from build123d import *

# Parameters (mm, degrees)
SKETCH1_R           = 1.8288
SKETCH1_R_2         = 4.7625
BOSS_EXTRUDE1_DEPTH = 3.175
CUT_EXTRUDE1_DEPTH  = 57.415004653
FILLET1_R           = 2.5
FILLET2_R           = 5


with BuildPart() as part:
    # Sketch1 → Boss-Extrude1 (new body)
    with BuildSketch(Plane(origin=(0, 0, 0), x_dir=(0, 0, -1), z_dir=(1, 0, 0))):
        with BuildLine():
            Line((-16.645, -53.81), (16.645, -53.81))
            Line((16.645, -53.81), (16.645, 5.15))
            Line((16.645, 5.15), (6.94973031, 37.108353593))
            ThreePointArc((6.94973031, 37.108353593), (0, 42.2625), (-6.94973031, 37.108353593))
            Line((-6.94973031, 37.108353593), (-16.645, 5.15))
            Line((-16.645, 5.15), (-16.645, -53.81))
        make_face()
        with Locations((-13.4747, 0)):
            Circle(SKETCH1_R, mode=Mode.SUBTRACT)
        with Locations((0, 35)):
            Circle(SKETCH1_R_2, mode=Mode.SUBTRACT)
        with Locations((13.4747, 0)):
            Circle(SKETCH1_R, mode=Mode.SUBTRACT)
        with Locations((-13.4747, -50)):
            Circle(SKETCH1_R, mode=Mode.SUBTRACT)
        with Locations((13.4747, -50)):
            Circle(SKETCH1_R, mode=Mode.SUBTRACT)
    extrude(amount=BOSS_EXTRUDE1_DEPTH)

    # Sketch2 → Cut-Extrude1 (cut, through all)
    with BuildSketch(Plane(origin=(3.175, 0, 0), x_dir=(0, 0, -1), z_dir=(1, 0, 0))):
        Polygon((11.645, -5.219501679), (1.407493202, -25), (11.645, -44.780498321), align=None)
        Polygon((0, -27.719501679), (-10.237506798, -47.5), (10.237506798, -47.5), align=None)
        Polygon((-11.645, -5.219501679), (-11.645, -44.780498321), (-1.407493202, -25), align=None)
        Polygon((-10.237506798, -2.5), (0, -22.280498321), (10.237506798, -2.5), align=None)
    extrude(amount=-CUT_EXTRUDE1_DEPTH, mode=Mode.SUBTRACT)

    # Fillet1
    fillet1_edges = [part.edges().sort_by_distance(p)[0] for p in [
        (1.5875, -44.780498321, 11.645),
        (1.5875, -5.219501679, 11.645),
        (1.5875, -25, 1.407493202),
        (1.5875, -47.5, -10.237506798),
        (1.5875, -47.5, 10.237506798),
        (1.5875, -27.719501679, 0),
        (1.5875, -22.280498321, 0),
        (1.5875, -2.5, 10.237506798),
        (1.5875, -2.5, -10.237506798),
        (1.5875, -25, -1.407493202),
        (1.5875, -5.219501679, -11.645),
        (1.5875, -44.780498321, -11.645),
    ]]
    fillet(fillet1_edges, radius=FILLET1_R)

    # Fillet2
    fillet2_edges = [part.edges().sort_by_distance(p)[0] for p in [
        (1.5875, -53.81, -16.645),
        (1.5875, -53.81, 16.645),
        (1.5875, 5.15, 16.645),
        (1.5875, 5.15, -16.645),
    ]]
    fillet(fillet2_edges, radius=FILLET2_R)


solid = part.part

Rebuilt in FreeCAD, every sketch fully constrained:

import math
import FreeCAD as App
import Part
import Sketcher

V = App.Vector
Q = App.Units.Quantity


def edges_at(feature, points):
    """Names of the edges that pass closest to the given points."""
    edges = feature.Shape.Edges
    near = lambda p: min(range(len(edges)), key=lambda i: edges[i].distToShape(Part.Vertex(*p))[0])
    return sorted({f"Edge{near(p) + 1}" for p in points})

doc = App.newDocument("Part")
params = doc.addObject("Spreadsheet::Sheet", "Params")
for row, (alias, value) in enumerate([
    ("sketch1_diameter", "0.144 in"),
    ("sketch1_diameter2", "0.375 in"),
    ("pad1_length", "0.125 in"),
    ("fillet_radius", "2.5 mm"),
    ("fillet2_radius", "5 mm"),
], start=1):
    params.set(f"A{row}", alias)
    params.set(f"B{row}", "=" + value)
    params.setAlias(f"B{row}", alias)

body = doc.addObject("PartDesign::Body", "Body")

# Sketch on YZ plane
sketch1 = body.newObject("Sketcher::SketchObject", "Sketch")
sketch1.AttachmentSupport = (doc.getObject("YZ_Plane"), [""])
sketch1.MapMode = "FlatFace"
sketch1.addGeometry([
    Part.LineSegment(V(-53.8, 16.6, 0), V(-53.8, -16.6, 0)),  # 0
    Part.LineSegment(V(-53.8, -16.6, 0), V(5.2, -16.6, 0)),  # 1
    Part.LineSegment(V(5.2, -16.6, 0), V(37.1, -6.9, 0)),  # 2
    Part.ArcOfCircle(Part.Circle(V(35, 0, 0), V(0, 0, 1), 7.3), math.radians(-73), math.radians(73)),  # 3
    Part.LineSegment(V(37.1, 6.9, 0), V(5.2, 16.6, 0)),  # 4
    Part.LineSegment(V(5.2, 16.6, 0), V(-53.8, 16.6, 0)),  # 5
    Part.Circle(V(-50, 13.5, 0), V(0, 0, 1), 1.8),  # 6
    Part.Circle(V(-50, -13.5, 0), V(0, 0, 1), 1.8),  # 7
    Part.Circle(V(0, 13.5, 0), V(0, 0, 1), 1.8),  # 8
    Part.Circle(V(0, -13.5, 0), V(0, 0, 1), 1.8),  # 9
    Part.Circle(V(35, 0, 0), V(0, 0, 1), 4.8),  # 10
], False)
sketch1.addConstraint([
    Sketcher.Constraint("Coincident", 0, 2, 1, 1),
    Sketcher.Constraint("Coincident", 1, 2, 2, 1),
    Sketcher.Constraint("Tangent", 2, 2, 3, 1),
    Sketcher.Constraint("Tangent", 3, 2, 4, 1),
    Sketcher.Constraint("Coincident", 4, 2, 5, 1),
    Sketcher.Constraint("Coincident", 5, 2, 0, 1),
    Sketcher.Constraint("Vertical", 0),
    Sketcher.Constraint("Horizontal", 1),
    Sketcher.Constraint("Horizontal", 5),
    Sketcher.Constraint("Coincident", 10, 3, 3, 3),
    Sketcher.Constraint("Equal", 6, 7),
    Sketcher.Constraint("Equal", 7, 8),
    Sketcher.Constraint("Equal", 8, 9),
    Sketcher.Constraint("Symmetric", 8, 3, 9, 3, -1, 1),
    Sketcher.Constraint("Symmetric", 6, 3, 7, 3, -1),
    Sketcher.Constraint("Symmetric", 2, 2, 3, 2, -1),
    Sketcher.Constraint("PointOnObject", 8, 3, -2),
    Sketcher.Constraint("Horizontal", 6, 3, 8, 3),
    Sketcher.Constraint("Vertical", 1, 2, 4, 2),
    Sketcher.Constraint("Diameter", 6, Q("0.144 in")),
    Sketcher.Constraint("Diameter", 10, Q("0.375 in")),
    Sketcher.Constraint("Radius", 3, Q("7.2625 mm")),
    Sketcher.Constraint("DistanceX", 0, 2, 7, 3, Q("0.15 in")),
    Sketcher.Constraint("DistanceY", 7, 3, 6, 3, Q("1.061 in")),
    Sketcher.Constraint("DistanceX", 1, 1, 1, 2, Q("58.96 mm")),
    Sketcher.Constraint("DistanceY", 0, 2, 0, 1, Q("33.29 mm")),
    Sketcher.Constraint("DistanceX", -1, 1, 3, 3, Q("35 mm")),
    Sketcher.Constraint("DistanceX", 6, 3, -1, 1, Q("50 mm")),
])
sketch1.setExpression("Constraints[19]", "Params.sketch1_diameter")
sketch1.setExpression("Constraints[20]", "Params.sketch1_diameter2")
pad1 = body.newObject("PartDesign::Pad", "Pad")
pad1.Profile = sketch1
pad1.setExpression("Length", "Params.pad1_length")

# Sketch on YZ plane
sketch2 = body.newObject("Sketcher::SketchObject", "Sketch001")
sketch2.AttachmentSupport = (doc.getObject("YZ_Plane"), [""])
sketch2.MapMode = "FlatFace"
sketch2.AttachmentOffset = App.Placement(V(0, 0, 0.125 * 25.4), App.Rotation())
sketch2.addGeometry([
    Part.LineSegment(V(-5, -12, 0), V(-25, -1, 0)),  # 0
    Part.LineSegment(V(-25, -1, 0), V(-45, -12, 0)),  # 1
    Part.LineSegment(V(-45, -12, 0), V(-5, -12, 0)),  # 2
    Part.LineSegment(V(-28, 0, 0), V(-48, 10, 0)),  # 3
    Part.LineSegment(V(-48, 10, 0), V(-48, -10, 0)),  # 4
    Part.LineSegment(V(-48, -10, 0), V(-28, 0, 0)),  # 5
    Part.LineSegment(V(-5, 12, 0), V(-45, 12, 0)),  # 6
    Part.LineSegment(V(-45, 12, 0), V(-25, 1, 0)),  # 7
    Part.LineSegment(V(-25, 1, 0), V(-5, 12, 0)),  # 8
    Part.LineSegment(V(-2, 10, 0), V(-22, 0, 0)),  # 9
    Part.LineSegment(V(-22, 0, 0), V(-2, -10, 0)),  # 10
    Part.LineSegment(V(-2, -10, 0), V(-2, 10, 0)),  # 11
], False)
sketch2.addConstraint([
    Sketcher.Constraint("Coincident", 0, 2, 1, 1),
    Sketcher.Constraint("Coincident", 1, 2, 2, 1),
    Sketcher.Constraint("Coincident", 2, 2, 0, 1),
    Sketcher.Constraint("Coincident", 3, 2, 4, 1),
    Sketcher.Constraint("Coincident", 4, 2, 5, 1),
    Sketcher.Constraint("Coincident", 5, 2, 3, 1),
    Sketcher.Constraint("Coincident", 6, 2, 7, 1),
    Sketcher.Constraint("Coincident", 7, 2, 8, 1),
    Sketcher.Constraint("Coincident", 8, 2, 6, 1),
    Sketcher.Constraint("Coincident", 9, 2, 10, 1),
    Sketcher.Constraint("Coincident", 10, 2, 11, 1),
    Sketcher.Constraint("Coincident", 11, 2, 9, 1),
    Sketcher.Constraint("Horizontal", 2),
    Sketcher.Constraint("Vertical", 4),
    Sketcher.Constraint("Horizontal", 6),
    Sketcher.Constraint("Vertical", 11),
    Sketcher.Constraint("Symmetric", 1, 2, 6, 2, -1),
    Sketcher.Constraint("Symmetric", 0, 2, 7, 2, -1),
    Sketcher.Constraint("PointOnObject", 5, 2, -1),
    Sketcher.Constraint("PointOnObject", 9, 2, -1),
    Sketcher.Constraint("Parallel", 0, 3),
    Sketcher.Constraint("Parallel", 1, 5),
    Sketcher.Constraint("Parallel", 3, 7),
    Sketcher.Constraint("Parallel", 5, 8),
    Sketcher.Constraint("Parallel", 8, 9),
    Sketcher.Constraint("Parallel", 7, 10),
    Sketcher.Constraint("Horizontal", 4, 2, 10, 2),
    Sketcher.Constraint("Equal", 1, 3),
    Sketcher.Constraint("DistanceX", 0, 2, -1, 1, Q("25 mm")),
    Sketcher.Constraint("DistanceX", 1, 2, -1, 1, Q("44.780498 mm")),
    Sketcher.Constraint("DistanceY", 1, 2, -1, 1, Q("11.645 mm")),
    Sketcher.Constraint("DistanceX", 3, 2, -1, 1, Q("47.5 mm")),
    Sketcher.Constraint("DistanceX", 9, 2, -1, 1, Q("22.280498 mm")),
    Sketcher.Constraint("DistanceY", 4, 2, 4, 1, Q("20.475014 mm")),
])
pocket1 = body.newObject("PartDesign::Pocket", "Pocket")
pocket1.Profile = sketch2
pocket1.Type = "ThroughAll"
doc.recompute()

fillet = body.newObject("PartDesign::Fillet", "Fillet")
fillet.Base = (pocket1, edges_at(pocket1, [
    (1.587, -44.78, 11.645),
    (1.587, -5.22, 11.645),
    (1.587, -25, 1.407),
    (1.587, -47.5, -10.238),
    (1.587, -47.5, 10.238),
    (1.587, -27.72, 0),
    (1.587, -22.28, 0),
    (1.587, -2.5, 10.238),
    (1.587, -2.5, -10.238),
    (1.587, -25, -1.407),
    (1.587, -5.22, -11.645),
    (1.587, -44.78, -11.645),
]))
fillet.setExpression("Radius", "Params.fillet_radius")
doc.recompute()

fillet2 = body.newObject("PartDesign::Fillet", "Fillet001")
fillet2.Base = (fillet, edges_at(fillet, [
    (1.587, -53.81, -16.645),
    (1.587, -53.81, 16.645),
    (1.587, 5.15, 16.645),
    (1.587, 5.15, -16.645),
]))
fillet2.setExpression("Radius", "Params.fillet2_radius")

doc.recompute()
